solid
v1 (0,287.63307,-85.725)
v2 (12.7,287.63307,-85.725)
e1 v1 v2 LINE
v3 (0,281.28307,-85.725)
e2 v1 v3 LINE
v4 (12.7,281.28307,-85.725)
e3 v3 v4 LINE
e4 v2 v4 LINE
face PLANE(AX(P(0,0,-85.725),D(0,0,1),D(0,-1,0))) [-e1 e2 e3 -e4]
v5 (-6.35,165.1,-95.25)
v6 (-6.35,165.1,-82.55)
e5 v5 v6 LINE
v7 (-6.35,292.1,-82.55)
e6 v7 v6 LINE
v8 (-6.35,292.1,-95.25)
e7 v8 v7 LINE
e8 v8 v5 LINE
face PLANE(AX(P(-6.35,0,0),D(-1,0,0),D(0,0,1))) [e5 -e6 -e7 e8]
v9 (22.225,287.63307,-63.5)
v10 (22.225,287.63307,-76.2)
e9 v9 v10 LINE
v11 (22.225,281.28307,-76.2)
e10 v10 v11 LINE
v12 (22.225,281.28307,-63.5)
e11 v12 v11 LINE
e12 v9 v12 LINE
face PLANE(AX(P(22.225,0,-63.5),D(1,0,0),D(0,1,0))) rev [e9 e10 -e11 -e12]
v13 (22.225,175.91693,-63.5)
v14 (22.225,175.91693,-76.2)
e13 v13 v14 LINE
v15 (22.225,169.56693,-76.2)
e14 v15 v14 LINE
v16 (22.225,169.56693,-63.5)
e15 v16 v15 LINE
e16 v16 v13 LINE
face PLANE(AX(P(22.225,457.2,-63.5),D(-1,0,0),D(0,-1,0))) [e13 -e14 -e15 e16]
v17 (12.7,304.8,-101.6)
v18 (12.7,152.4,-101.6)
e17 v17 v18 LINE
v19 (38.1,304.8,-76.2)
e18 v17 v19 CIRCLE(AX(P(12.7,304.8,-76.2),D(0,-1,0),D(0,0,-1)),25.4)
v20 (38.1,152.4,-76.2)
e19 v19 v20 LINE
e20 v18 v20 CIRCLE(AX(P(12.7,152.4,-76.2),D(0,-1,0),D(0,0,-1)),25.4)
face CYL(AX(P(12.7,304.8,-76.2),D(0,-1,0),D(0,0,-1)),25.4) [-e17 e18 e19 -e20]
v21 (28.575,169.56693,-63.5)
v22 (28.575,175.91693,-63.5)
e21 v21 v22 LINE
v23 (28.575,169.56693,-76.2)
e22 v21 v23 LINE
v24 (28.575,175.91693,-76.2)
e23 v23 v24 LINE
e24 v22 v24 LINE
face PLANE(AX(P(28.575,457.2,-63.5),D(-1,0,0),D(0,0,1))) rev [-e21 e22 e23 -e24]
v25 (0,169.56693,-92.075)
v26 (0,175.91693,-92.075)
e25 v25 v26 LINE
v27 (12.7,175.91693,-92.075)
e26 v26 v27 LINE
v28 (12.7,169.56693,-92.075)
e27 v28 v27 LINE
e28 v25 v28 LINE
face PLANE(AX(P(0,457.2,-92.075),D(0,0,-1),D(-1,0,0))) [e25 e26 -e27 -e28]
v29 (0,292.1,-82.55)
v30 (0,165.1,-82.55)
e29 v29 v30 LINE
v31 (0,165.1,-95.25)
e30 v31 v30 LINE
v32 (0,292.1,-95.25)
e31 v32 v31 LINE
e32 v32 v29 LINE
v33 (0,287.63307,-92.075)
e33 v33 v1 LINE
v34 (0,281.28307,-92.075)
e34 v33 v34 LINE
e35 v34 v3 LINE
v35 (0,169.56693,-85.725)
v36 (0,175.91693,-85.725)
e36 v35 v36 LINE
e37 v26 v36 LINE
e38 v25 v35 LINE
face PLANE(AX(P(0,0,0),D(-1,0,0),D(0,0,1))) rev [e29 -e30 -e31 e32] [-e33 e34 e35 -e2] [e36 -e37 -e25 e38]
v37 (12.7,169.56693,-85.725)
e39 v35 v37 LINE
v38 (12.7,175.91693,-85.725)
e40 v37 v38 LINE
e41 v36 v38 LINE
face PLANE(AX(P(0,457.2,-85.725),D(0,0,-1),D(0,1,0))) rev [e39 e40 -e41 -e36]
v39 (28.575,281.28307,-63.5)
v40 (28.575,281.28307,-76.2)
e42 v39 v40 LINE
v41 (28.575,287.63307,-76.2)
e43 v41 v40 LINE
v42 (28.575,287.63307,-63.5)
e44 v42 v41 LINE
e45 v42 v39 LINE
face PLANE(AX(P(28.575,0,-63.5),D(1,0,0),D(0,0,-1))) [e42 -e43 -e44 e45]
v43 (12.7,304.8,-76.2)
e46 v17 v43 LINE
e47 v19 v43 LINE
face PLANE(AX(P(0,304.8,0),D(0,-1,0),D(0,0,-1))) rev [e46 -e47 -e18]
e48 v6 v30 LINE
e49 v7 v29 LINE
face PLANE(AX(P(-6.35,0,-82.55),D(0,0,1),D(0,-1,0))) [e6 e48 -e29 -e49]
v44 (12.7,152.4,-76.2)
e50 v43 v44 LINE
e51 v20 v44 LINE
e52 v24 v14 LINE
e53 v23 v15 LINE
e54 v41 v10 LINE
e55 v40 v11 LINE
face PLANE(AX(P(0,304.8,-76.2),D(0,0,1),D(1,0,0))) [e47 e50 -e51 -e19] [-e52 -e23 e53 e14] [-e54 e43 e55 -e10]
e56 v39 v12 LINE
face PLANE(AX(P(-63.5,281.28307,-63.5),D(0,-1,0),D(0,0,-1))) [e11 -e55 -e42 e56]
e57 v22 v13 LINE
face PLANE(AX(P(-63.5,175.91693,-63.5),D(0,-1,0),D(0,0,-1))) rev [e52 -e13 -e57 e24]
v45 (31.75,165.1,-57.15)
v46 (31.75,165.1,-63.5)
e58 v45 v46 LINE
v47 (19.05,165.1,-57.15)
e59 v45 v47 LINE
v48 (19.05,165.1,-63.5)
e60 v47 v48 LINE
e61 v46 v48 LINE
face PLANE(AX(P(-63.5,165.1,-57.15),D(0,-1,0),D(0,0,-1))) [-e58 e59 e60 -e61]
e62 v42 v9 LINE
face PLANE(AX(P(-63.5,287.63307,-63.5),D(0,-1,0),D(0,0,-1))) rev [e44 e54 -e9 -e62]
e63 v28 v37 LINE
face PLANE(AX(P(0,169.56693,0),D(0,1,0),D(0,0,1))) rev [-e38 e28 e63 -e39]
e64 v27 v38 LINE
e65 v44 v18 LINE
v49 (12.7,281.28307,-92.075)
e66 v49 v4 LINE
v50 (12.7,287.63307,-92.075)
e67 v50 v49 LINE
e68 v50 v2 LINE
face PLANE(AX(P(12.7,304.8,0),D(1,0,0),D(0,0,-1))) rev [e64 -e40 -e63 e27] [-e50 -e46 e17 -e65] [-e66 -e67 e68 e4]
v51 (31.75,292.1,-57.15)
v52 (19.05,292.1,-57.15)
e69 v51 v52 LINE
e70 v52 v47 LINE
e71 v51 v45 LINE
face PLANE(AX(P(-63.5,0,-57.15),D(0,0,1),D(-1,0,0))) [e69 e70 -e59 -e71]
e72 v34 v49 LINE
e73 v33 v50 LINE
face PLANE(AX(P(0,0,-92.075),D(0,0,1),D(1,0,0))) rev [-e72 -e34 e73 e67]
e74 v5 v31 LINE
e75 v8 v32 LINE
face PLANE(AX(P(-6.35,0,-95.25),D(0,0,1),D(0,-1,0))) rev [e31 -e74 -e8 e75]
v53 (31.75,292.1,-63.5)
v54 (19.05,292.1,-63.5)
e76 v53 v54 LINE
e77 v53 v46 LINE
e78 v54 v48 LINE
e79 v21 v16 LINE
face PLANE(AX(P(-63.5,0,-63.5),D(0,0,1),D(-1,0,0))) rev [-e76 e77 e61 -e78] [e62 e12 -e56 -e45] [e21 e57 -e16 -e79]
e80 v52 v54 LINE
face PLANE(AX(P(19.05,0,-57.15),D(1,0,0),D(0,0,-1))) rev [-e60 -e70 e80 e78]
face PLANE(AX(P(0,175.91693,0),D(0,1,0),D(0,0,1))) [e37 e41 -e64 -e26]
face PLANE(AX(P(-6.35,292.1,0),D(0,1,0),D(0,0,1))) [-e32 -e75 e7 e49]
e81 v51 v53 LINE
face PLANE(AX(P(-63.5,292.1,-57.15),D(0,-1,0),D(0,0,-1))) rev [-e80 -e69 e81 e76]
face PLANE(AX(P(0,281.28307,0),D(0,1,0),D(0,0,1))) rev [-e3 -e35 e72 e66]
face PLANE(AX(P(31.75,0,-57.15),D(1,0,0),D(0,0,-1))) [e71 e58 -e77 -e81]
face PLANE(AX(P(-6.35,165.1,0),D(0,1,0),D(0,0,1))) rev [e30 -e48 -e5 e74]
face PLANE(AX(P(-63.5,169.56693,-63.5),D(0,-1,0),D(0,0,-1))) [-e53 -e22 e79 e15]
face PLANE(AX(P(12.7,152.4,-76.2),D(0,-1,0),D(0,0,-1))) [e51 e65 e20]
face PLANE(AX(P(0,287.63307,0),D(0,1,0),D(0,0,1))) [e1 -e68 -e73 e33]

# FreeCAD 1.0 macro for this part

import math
import FreeCAD as App
import Part
import Sketcher
from FreeCAD import Vector
Q = App.Units.Quantity


def add_polygon(sketch, points):
    """Adds a closed chain of lines whose ends are joined by coincident constraints."""
    first, n = sketch.GeometryCount, len(points)
    for a, b in zip(points, points[1:] + points[:1]):
        sketch.addGeometry(Part.LineSegment(App.Vector(*a, 0), App.Vector(*b, 0)), False)
    for i in range(n):
        sketch.addConstraint(Sketcher.Constraint("Coincident", first + i, 2, first + (i + 1) % n, 1))

doc = App.newDocument("Part")
body = doc.addObject("PartDesign::Body", "Body")

# Sketch on XZ plane
sketch1 = body.newObject("Sketcher::SketchObject", "Sketch")
sketch1.AttachmentSupport = (doc.getObject("XZ_Plane"), [""])
sketch1.MapMode = "FlatFace"
add_polygon(sketch1, [(0, -102), (0, 0), (38, 0), (38, -102)])  # lines 0-3
sketch1.addConstraint(Sketcher.Constraint("Vertical", 0))
sketch1.addConstraint(Sketcher.Constraint("Horizontal", 1))
sketch1.addConstraint(Sketcher.Constraint("Vertical", 2))
sketch1.addConstraint(Sketcher.Constraint("Horizontal", 3))
sketch1.addConstraint(Sketcher.Constraint("Coincident", 0, 2, -1, 1))
sketch1.addConstraint(Sketcher.Constraint("DistanceY", 0, 1, 0, 2, Q("4 in")))
sketch1.addConstraint(Sketcher.Constraint("DistanceX", 1, 1, 1, 2, Q("1.5 in")))
pad1 = body.newObject("PartDesign::Pad", "Pad")
pad1.Profile = sketch1
pad1.Length = Q("12 in")
pad1.Reversed = True

# Sketch on XZ plane
sketch2 = body.newObject("Sketcher::SketchObject", "Sketch001")
sketch2.AttachmentSupport = (doc.getObject("XZ_Plane"), [""])
sketch2.MapMode = "FlatFace"
add_polygon(sketch2, [(38, -76), (38, 0), (0, 0), (0, -76)])  # lines 0-3
sketch2.addConstraint(Sketcher.Constraint("Vertical", 0))
sketch2.addConstraint(Sketcher.Constraint("Horizontal", 1))
sketch2.addConstraint(Sketcher.Constraint("Vertical", 2))
sketch2.addConstraint(Sketcher.Constraint("Horizontal", 3))
sketch2.addConstraint(Sketcher.Constraint("Coincident", 1, 2, -1, 1))
sketch2.addConstraint(Sketcher.Constraint("DistanceY", 0, 1, 0, 2, Q("3 in")))
sketch2.addConstraint(Sketcher.Constraint("DistanceX", 1, 2, 1, 1, Q("1.5 in")))
pocket1 = body.newObject("PartDesign::Pocket", "Pocket")
pocket1.Profile = sketch2
pocket1.Type = "ThroughAll"

# Sketch on XZ plane
sketch3 = body.newObject("Sketcher::SketchObject", "Sketch002")
sketch3.AttachmentSupport = (doc.getObject("XZ_Plane"), [""])
sketch3.MapMode = "FlatFace"
add_polygon(sketch3, [(0, -76), (0, -102), (13, -102), (13, -76)])  # lines 0-3
sketch3.addConstraint(Sketcher.Constraint("Vertical", 0))
sketch3.addConstraint(Sketcher.Constraint("Horizontal", 1))
sketch3.addConstraint(Sketcher.Constraint("Vertical", 2))
sketch3.addConstraint(Sketcher.Constraint("Horizontal", 3))
sketch3.addConstraint(Sketcher.Constraint("PointOnObject", 0, 2, -2))
sketch3.addConstraint(Sketcher.Constraint("DistanceY", 0, 2, 0, 1, Q("1 in")))
sketch3.addConstraint(Sketcher.Constraint("DistanceX", 1, 1, 1, 2, Q("0.5 in")))
sketch3.addConstraint(Sketcher.Constraint("DistanceY", 0, 2, -1, 1, Q("4 in")))
pocket2 = body.newObject("PartDesign::Pocket", "Pocket001")
pocket2.Profile = sketch3
pocket2.Type = "ThroughAll"

# Sketch on XZ plane
sketch4 = body.newObject("Sketcher::SketchObject", "Sketch003")
sketch4.AttachmentSupport = (doc.getObject("XZ_Plane"), [""])
sketch4.MapMode = "FlatFace"
sketch4.addGeometry(Part.ArcOfCircle(Part.Circle(Vector(13, -76, 0), Vector(0, 0, 1), 25), math.radians(-90), math.radians(0)), False)
sketch4.addGeometry(Part.LineSegment(Vector(13, -102, 0), Vector(38, -102, 0)), False)
sketch4.addGeometry(Part.LineSegment(Vector(38, -102, 0), Vector(38, -76, 0)), False)
sketch4.addConstraint(Sketcher.Constraint("Tangent", 0, 1, 1, 1))
sketch4.addConstraint(Sketcher.Constraint("Coincident", 1, 2, 2, 1))
sketch4.addConstraint(Sketcher.Constraint("Tangent", 2, 2, 0, 2))
sketch4.addConstraint(Sketcher.Constraint("Horizontal", 1))
sketch4.addConstraint(Sketcher.Constraint("Vertical", 2))
sketch4.addConstraint(Sketcher.Constraint("Radius", 0, Q("1 in")))
sketch4.addConstraint(Sketcher.Constraint("DistanceY", 0, 3, -1, 1, Q("3 in")))
sketch4.addConstraint(Sketcher.Constraint("DistanceX", -1, 1, 0, 3, Q("0.5 in")))
pocket3 = body.newObject("PartDesign::Pocket", "Pocket002")
pocket3.Profile = sketch4
pocket3.Type = "ThroughAll"

# Sketch on XZ plane
sketch5 = body.newObject("Sketcher::SketchObject", "Sketch004")
sketch5.AttachmentSupport = (doc.getObject("XZ_Plane"), [""])
sketch5.MapMode = "FlatFace"
sketch5.addGeometry(Part.LineSegment(Vector(13, -76, 0), Vector(13, -102, 0)), False)
sketch5.addGeometry(Part.ArcOfCircle(Part.Circle(Vector(13, -76, 0), Vector(0, 0, 1), 25), math.radians(-90), math.radians(0)), False)
sketch5.addGeometry(Part.LineSegment(Vector(38, -76, 0), Vector(13, -76, 0)), False)
sketch5.addConstraint(Sketcher.Constraint("Coincident", 0, 2, 1, 1))
sketch5.addConstraint(Sketcher.Constraint("Coincident", 1, 2, 2, 1))
sketch5.addConstraint(Sketcher.Constraint("Coincident", 2, 2, 0, 1))
sketch5.addConstraint(Sketcher.Constraint("Vertical", 0))
sketch5.addConstraint(Sketcher.Constraint("Horizontal", 2))
sketch5.addConstraint(Sketcher.Constraint("Coincident", 2, 2, 1, 3))
sketch5.addConstraint(Sketcher.Constraint("Radius", 1, Q("1 in")))
sketch5.addConstraint(Sketcher.Constraint("DistanceY", 1, 3, -1, 1, Q("3 in")))
sketch5.addConstraint(Sketcher.Constraint("DistanceX", -1, 1, 1, 3, Q("0.5 in")))
pocket4 = body.newObject("PartDesign::Pocket", "Pocket003")
pocket4.Profile = sketch5
pocket4.Length = Q("6 in")

# Sketch on YZ plane
sketch6 = body.newObject("Sketcher::SketchObject", "Sketch005")
sketch6.AttachmentSupport = (doc.getObject("YZ_Plane"), [""])
sketch6.MapMode = "FlatFace"
sketch6.AttachmentOffset = App.Placement(Vector(0, 0, 0.5 * 25.4), App.Rotation())
add_polygon(sketch6, [(288, -92), (281, -92), (281, -86), (288, -86)])  # lines 0-3
sketch6.addConstraint(Sketcher.Constraint("Horizontal", 0))
sketch6.addConstraint(Sketcher.Constraint("Vertical", 1))
sketch6.addConstraint(Sketcher.Constraint("Horizontal", 2))
sketch6.addConstraint(Sketcher.Constraint("Vertical", 3))
sketch6.addConstraint(Sketcher.Constraint("Equal", 2, 1))
sketch6.addConstraint(Sketcher.Constraint("DistanceX", 0, 2, 0, 1, Q("0.25 in")))
sketch6.addConstraint(Sketcher.Constraint("DistanceY", 0, 2, -1, 1, Q("3.625 in")))
sketch6.addConstraint(Sketcher.Constraint("DistanceX", -1, 1, 0, 2, Q("281.28307 mm")))
pad2 = body.newObject("PartDesign::Pad", "Pad001")
pad2.Profile = sketch6
pad2.Length = Q("0.5 in")
pad2.Reversed = True
doc.recompute()

datumplane = body.newObject("PartDesign::Plane", "DatumPlane")
datumplane.AttachmentSupport = (doc.getObject("XZ_Plane"), [""])
datumplane.MapMode = "FlatFace"
datumplane.AttachmentOffset = App.Placement(Vector(0, 0, -9 * 25.4), App.Rotation())
mirrored = body.newObject("PartDesign::Mirrored", "Mirrored")
mirrored.Originals = [pad2]
mirrored.MirrorPlane = (datumplane, [""])
body.Tip = mirrored

# Sketch on YZ plane
sketch7 = body.newObject("Sketcher::SketchObject", "Sketch006")
sketch7.AttachmentSupport = (doc.getObject("YZ_Plane"), [""])
sketch7.MapMode = "FlatFace"
add_polygon(sketch7, [(292, -95), (165, -95), (165, -83), (292, -83)])  # lines 0-3
sketch7.addConstraint(Sketcher.Constraint("Horizontal", 0))
sketch7.addConstraint(Sketcher.Constraint("Vertical", 1))
sketch7.addConstraint(Sketcher.Constraint("Horizontal", 2))
sketch7.addConstraint(Sketcher.Constraint("Vertical", 3))
sketch7.addConstraint(Sketcher.Constraint("DistanceX", 0, 2, 0, 1, Q("5 in")))
sketch7.addConstraint(Sketcher.Constraint("DistanceY", 1, 1, 1, 2, Q("0.5 in")))
sketch7.addConstraint(Sketcher.Constraint("DistanceX", -1, 1, 0, 2, Q("6.5 in")))
sketch7.addConstraint(Sketcher.Constraint("DistanceY", 0, 2, -1, 1, Q("3.75 in")))
pad3 = body.newObject("PartDesign::Pad", "Pad002")
pad3.Profile = sketch7
pad3.Length = Q("0.25 in")
pad3.Reversed = True
doc.recompute()

datumplane2 = body.newObject("PartDesign::Plane", "DatumPlane001")
datumplane2.Placement = App.Placement(Vector(-31.75, 0, -31.75), App.Rotation(Vector(-0.707106781, 0, 0.707106781), Vector(0, -1, 0), Vector(0.707106781, 0, 0.707106781), "ZXY"))
mirrored2 = body.newObject("PartDesign::Mirrored", "Mirrored001")
mirrored2.Originals = [pad2, pad3]
mirrored2.MirrorPlane = (datumplane2, [""])
body.Tip = mirrored2

# Sketch on XY plane
sketch8 = body.newObject("Sketcher::SketchObject", "Sketch007")
sketch8.AttachmentSupport = (doc.getObject("XY_Plane"), [""])
sketch8.MapMode = "FlatFace"
sketch8.AttachmentOffset = App.Placement(Vector(0, 0, -3 * 25.4), App.Rotation())
add_polygon(sketch8, [(29, 170), (29, 176), (22, 176), (22, 170)])  # lines 0-3
sketch8.addConstraint(Sketcher.Constraint("Vertical", 0))
sketch8.addConstraint(Sketcher.Constraint("Horizontal", 1))
sketch8.addConstraint(Sketcher.Constraint("Vertical", 2))
sketch8.addConstraint(Sketcher.Constraint("Horizontal", 3))
sketch8.addConstraint(Sketcher.Constraint("Equal", 3, 0))
sketch8.addConstraint(Sketcher.Constraint("DistanceX", 1, 2, 1, 1, Q("0.25 in")))
sketch8.addConstraint(Sketcher.Constraint("DistanceX", -1, 1, 0, 2, Q("1.125 in")))
sketch8.addConstraint(Sketcher.Constraint("DistanceY", -1, 1, 0, 2, Q("175.91693 mm")))
pad4 = body.newObject("PartDesign::Pad", "Pad003")
pad4.Profile = sketch8
pad4.Length = Q("0.5 in")

doc.recompute()
